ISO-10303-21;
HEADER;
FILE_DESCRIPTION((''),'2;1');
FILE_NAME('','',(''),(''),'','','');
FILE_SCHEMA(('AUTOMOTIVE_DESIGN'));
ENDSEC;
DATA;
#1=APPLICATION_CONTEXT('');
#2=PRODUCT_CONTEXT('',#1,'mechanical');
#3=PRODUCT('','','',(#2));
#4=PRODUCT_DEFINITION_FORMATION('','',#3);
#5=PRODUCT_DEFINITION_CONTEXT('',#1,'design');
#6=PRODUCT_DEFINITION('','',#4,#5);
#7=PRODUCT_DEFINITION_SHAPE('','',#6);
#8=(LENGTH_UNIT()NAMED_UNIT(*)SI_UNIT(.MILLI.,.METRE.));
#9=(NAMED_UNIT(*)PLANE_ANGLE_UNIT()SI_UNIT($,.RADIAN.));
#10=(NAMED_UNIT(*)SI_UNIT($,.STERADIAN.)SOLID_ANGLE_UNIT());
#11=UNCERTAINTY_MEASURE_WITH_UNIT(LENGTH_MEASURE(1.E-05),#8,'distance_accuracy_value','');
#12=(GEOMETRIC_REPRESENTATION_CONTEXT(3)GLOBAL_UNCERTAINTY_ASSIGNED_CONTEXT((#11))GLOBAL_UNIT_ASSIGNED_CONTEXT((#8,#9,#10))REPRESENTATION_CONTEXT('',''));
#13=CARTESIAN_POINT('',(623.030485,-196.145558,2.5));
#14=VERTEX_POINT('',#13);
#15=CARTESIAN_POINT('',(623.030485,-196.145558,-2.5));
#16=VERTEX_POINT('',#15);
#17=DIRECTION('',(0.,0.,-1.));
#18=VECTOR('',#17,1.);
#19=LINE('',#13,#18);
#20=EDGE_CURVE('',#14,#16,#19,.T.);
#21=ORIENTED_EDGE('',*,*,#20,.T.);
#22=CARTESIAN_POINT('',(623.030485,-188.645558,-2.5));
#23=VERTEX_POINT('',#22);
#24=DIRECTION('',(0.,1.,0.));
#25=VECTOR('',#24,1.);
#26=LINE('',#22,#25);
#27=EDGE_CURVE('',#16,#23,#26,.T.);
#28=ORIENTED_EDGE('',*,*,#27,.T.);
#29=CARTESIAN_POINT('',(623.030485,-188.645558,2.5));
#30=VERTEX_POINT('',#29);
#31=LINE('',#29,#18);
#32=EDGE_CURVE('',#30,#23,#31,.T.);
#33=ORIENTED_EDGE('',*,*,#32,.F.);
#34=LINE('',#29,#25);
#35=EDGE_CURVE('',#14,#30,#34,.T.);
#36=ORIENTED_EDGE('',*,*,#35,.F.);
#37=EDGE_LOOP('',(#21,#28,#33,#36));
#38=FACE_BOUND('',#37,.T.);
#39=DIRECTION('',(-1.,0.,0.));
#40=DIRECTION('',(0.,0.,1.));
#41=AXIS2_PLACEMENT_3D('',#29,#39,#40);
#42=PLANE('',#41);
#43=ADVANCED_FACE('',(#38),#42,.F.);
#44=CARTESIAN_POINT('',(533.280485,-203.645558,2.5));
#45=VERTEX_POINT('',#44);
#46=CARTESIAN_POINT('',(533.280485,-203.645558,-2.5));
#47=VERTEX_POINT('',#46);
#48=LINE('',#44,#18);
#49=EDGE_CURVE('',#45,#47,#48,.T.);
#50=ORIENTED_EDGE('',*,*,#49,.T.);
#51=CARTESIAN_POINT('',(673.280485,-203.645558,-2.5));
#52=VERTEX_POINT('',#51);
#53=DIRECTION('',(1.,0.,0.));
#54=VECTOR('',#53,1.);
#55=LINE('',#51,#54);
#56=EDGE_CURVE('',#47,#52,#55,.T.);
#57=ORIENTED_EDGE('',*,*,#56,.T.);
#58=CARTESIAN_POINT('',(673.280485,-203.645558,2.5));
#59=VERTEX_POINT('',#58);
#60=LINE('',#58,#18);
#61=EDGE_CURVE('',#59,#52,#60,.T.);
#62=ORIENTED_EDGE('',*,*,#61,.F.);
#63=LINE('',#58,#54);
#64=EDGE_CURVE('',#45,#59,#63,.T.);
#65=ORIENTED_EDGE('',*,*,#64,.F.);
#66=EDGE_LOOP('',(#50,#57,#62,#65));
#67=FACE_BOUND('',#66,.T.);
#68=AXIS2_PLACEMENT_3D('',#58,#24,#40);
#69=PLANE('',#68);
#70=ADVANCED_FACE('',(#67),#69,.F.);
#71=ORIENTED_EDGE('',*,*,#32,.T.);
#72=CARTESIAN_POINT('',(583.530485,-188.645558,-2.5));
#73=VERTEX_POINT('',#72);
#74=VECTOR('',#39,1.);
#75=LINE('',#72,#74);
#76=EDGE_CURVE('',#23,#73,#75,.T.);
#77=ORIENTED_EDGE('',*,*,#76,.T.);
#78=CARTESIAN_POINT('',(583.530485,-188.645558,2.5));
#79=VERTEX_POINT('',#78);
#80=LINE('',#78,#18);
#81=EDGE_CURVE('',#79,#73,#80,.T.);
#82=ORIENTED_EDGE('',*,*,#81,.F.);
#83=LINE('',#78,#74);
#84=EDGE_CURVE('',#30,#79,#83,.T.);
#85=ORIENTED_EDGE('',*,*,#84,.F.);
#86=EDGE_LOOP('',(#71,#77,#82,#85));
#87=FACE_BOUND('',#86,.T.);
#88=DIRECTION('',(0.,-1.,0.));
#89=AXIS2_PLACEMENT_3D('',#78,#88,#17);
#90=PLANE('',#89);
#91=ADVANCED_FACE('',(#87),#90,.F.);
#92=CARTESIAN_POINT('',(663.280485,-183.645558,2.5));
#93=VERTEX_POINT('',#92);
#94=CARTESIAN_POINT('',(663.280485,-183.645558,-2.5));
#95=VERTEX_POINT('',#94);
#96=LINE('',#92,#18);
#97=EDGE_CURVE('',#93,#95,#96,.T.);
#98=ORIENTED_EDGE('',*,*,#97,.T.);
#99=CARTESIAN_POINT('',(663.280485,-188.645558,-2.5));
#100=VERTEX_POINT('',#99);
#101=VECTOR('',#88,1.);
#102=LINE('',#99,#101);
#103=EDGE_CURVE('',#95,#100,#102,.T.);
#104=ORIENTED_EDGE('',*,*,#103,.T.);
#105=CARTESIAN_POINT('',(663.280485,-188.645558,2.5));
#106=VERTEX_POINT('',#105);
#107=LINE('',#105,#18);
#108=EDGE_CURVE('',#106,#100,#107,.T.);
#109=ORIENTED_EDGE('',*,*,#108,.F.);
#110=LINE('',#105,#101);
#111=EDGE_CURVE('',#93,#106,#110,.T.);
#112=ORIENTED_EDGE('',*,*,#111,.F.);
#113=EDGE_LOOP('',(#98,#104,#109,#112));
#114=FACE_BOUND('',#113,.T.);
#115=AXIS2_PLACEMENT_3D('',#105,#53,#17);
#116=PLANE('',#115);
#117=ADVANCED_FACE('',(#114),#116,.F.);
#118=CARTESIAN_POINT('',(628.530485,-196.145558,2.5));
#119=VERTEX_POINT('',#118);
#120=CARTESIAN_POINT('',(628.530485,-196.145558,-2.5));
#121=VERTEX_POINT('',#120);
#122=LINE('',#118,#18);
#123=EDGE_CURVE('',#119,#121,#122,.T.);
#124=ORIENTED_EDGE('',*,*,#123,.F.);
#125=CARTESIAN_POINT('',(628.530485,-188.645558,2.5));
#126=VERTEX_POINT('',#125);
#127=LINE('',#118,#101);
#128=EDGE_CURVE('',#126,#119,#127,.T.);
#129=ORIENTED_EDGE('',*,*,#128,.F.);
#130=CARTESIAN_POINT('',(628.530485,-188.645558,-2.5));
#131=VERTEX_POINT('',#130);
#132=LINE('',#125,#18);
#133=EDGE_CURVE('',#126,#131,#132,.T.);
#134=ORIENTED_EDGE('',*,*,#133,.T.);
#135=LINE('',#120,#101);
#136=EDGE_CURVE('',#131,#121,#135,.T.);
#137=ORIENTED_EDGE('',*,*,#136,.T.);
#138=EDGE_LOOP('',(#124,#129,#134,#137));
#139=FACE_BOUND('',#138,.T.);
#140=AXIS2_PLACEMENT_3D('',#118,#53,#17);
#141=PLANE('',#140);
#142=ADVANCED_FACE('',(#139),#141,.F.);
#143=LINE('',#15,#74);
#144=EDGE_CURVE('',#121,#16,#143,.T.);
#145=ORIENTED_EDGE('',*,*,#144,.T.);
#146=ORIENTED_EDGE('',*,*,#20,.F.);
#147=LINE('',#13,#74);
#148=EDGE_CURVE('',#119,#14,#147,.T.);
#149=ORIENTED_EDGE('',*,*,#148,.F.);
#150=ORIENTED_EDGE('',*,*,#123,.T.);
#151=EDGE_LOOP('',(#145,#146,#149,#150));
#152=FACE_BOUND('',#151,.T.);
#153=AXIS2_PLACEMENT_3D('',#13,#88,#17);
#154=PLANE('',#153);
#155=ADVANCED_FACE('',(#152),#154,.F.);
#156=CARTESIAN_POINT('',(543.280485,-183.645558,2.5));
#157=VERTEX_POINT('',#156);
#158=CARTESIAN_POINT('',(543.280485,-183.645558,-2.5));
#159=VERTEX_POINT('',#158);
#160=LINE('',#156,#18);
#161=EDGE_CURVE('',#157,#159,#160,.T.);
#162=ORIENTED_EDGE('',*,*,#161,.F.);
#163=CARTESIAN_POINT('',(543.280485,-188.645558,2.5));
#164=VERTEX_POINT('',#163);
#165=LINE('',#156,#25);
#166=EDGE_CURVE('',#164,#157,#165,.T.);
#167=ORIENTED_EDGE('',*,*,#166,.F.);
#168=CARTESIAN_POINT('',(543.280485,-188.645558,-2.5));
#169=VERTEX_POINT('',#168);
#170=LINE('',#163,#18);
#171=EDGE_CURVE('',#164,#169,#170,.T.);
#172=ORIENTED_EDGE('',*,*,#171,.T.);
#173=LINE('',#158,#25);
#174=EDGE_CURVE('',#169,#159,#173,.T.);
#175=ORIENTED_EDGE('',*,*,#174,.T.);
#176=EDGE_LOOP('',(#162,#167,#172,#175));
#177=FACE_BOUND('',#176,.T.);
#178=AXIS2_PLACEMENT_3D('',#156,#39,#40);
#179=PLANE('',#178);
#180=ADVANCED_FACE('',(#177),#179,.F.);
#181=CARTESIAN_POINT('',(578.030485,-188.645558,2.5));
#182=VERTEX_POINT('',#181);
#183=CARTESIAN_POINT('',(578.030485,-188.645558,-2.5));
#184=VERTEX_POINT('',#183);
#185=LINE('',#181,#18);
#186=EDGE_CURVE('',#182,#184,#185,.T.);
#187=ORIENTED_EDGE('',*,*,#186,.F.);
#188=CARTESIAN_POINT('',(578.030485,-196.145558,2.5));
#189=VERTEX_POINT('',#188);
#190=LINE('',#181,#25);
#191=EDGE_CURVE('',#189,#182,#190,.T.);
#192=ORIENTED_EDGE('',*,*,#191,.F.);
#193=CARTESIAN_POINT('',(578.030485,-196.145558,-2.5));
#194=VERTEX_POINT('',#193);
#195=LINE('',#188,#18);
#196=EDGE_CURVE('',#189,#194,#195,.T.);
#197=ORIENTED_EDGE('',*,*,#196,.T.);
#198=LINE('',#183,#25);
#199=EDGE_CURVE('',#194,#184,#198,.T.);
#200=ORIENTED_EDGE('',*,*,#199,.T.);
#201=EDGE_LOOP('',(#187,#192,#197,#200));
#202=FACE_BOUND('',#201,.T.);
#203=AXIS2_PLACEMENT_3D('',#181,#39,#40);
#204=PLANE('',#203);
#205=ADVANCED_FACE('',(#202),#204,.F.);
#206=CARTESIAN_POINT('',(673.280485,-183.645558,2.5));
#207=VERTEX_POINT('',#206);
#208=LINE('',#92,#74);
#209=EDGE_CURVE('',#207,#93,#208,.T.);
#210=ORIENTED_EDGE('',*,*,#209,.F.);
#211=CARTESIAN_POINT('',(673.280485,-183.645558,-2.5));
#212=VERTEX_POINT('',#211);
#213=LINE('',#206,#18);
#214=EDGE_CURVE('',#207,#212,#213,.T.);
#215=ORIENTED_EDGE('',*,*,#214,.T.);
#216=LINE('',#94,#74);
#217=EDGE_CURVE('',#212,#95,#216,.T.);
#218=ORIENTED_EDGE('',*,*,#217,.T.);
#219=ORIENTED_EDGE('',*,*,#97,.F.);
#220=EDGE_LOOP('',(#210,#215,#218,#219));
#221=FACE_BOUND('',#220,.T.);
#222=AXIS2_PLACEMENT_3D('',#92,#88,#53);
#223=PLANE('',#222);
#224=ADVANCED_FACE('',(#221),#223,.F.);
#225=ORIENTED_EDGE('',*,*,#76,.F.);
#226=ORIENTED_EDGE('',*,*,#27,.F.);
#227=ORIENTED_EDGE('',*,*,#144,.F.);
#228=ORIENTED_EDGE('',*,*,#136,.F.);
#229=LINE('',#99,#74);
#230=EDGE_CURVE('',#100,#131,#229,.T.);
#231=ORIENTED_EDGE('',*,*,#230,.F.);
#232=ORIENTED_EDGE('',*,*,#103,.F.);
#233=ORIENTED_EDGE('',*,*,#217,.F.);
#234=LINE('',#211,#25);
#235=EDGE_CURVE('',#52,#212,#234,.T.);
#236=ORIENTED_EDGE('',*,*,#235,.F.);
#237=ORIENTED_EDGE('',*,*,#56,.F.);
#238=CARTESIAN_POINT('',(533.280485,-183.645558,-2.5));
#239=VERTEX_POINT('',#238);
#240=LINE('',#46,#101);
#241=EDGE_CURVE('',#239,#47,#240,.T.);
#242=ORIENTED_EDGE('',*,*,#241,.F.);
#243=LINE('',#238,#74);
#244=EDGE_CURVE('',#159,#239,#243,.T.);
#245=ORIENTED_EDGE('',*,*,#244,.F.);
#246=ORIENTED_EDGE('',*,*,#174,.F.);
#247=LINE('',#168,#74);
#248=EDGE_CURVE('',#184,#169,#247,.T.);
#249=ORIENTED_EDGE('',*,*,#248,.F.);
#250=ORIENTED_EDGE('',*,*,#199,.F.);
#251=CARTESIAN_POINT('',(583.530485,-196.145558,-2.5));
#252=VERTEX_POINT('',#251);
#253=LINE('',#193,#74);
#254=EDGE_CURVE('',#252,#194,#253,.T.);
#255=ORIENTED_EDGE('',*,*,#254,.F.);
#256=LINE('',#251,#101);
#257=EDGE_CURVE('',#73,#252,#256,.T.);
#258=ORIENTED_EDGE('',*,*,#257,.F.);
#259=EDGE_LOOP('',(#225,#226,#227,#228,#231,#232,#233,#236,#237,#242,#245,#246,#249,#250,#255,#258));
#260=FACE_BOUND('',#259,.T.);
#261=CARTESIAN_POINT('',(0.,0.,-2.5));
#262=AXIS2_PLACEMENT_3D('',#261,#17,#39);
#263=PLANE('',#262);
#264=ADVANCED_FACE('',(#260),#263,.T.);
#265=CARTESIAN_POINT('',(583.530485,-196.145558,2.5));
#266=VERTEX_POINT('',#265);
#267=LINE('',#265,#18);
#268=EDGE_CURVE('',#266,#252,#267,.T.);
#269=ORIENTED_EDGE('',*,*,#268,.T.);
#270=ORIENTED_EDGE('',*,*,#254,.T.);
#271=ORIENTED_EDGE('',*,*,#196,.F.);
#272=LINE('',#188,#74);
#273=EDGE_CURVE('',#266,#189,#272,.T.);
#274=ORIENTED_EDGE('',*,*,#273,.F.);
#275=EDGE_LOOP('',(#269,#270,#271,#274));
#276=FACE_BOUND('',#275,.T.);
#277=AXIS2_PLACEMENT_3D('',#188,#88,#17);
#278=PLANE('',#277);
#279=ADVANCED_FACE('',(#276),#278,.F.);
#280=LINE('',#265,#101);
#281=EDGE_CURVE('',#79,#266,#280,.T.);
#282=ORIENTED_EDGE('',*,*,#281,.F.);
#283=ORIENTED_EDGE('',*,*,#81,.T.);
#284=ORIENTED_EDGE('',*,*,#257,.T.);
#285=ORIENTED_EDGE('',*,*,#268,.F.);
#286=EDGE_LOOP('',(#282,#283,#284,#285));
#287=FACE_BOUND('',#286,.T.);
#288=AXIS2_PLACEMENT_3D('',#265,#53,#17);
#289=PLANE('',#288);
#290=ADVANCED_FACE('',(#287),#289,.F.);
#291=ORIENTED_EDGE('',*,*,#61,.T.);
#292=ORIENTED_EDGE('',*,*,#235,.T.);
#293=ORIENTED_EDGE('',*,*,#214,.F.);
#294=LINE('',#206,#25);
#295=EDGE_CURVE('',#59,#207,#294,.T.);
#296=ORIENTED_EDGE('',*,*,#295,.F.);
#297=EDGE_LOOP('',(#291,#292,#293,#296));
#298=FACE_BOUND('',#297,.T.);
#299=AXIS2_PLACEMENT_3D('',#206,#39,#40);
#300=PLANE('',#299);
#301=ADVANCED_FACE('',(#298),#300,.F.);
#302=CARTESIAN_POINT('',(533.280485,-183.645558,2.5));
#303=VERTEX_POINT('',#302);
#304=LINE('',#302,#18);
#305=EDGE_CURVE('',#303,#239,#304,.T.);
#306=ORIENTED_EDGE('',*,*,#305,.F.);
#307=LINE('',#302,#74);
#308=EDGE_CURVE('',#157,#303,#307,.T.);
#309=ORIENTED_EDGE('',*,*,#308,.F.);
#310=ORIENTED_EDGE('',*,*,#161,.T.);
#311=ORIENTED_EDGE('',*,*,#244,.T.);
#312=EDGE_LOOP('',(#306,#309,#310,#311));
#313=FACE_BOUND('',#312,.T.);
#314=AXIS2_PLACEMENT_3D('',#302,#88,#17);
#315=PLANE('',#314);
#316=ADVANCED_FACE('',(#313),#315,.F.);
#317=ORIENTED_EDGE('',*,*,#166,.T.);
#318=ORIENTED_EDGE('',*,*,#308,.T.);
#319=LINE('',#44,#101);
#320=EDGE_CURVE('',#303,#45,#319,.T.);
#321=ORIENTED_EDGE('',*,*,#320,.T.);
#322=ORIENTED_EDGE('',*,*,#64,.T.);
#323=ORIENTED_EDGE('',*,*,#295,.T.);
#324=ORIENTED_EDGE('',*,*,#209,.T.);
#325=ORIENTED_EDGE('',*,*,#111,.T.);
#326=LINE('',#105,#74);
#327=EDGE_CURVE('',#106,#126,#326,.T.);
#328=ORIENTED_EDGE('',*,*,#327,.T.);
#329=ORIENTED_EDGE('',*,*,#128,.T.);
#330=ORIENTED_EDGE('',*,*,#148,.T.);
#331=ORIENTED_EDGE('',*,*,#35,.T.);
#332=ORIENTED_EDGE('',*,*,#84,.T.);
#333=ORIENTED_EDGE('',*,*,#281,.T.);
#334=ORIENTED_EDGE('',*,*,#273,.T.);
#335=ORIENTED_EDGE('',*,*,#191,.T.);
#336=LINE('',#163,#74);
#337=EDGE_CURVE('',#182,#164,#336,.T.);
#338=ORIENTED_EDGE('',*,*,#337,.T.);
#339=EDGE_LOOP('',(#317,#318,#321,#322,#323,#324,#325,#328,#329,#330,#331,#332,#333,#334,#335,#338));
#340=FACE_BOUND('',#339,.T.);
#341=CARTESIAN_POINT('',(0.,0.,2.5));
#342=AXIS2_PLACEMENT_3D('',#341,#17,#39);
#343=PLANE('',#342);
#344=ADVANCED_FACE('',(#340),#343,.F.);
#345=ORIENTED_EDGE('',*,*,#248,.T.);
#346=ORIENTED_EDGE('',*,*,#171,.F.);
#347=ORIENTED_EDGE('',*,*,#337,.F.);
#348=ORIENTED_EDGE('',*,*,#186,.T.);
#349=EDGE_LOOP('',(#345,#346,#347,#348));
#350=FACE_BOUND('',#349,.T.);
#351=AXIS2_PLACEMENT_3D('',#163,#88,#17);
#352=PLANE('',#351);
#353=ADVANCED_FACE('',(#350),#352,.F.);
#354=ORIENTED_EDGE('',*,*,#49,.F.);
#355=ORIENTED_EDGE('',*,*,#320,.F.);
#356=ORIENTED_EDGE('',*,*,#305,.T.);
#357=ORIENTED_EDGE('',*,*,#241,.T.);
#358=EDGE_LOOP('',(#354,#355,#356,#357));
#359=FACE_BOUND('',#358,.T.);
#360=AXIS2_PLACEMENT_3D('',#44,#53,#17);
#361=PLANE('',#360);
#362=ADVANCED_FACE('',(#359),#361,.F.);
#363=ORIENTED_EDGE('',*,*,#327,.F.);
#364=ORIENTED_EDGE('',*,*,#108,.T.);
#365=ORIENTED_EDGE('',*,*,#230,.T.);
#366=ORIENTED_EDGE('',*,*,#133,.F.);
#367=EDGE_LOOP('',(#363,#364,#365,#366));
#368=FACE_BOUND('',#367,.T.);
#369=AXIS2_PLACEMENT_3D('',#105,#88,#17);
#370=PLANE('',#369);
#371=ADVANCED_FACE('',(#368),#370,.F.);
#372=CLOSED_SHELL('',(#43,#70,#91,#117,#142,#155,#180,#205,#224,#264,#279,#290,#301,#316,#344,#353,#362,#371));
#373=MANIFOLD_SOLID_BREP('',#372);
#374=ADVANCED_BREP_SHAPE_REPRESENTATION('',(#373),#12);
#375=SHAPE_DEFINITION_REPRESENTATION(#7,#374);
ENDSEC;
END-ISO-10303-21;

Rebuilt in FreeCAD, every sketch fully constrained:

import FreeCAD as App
import Part
import Sketcher
from FreeCAD import Vector


def add_polygon(sketch, points):
    """Adds a closed chain of lines whose ends are joined by coincident constraints."""
    first, n = sketch.GeometryCount, len(points)
    for a, b in zip(points, points[1:] + points[:1]):
        sketch.addGeometry(Part.LineSegment(App.Vector(*a, 0), App.Vector(*b, 0)), False)
    for i in range(n):
        sketch.addConstraint(Sketcher.Constraint("Coincident", first + i, 2, first + (i + 1) % n, 1))

doc = App.newDocument("Part")
body = doc.addObject("PartDesign::Body", "Body")

# Sketch on XY plane
sketch1 = body.newObject("Sketcher::SketchObject", "Sketch")
sketch1.AttachmentSupport = (doc.getObject("XY_Plane"), [""])
sketch1.MapMode = "FlatFace"
add_polygon(sketch1, [(673, -204), (673, -184), (663, -184), (663, -189), (629, -189), (629, -196), (623, -196), (623, -189), (584, -189), (584, -196), (578, -196), (578, -189), (543, -189), (543, -184), (533, -184), (533, -204)])  # lines 0-15
sketch1.addConstraint(Sketcher.Constraint("Vertical", 0))
sketch1.addConstraint(Sketcher.Constraint("Horizontal", 1))
sketch1.addConstraint(Sketcher.Constraint("Vertical", 2))
sketch1.addConstraint(Sketcher.Constraint("Horizontal", 3))
sketch1.addConstraint(Sketcher.Constraint("Vertical", 4))
sketch1.addConstraint(Sketcher.Constraint("Horizontal", 5))
sketch1.addConstraint(Sketcher.Constraint("Vertical", 6))
sketch1.addConstraint(Sketcher.Constraint("Horizontal", 7))
sketch1.addConstraint(Sketcher.Constraint("Vertical", 8))
sketch1.addConstraint(Sketcher.Constraint("Horizontal", 9))
sketch1.addConstraint(Sketcher.Constraint("Vertical", 10))
sketch1.addConstraint(Sketcher.Constraint("Horizontal", 11))
sketch1.addConstraint(Sketcher.Constraint("Vertical", 12))
sketch1.addConstraint(Sketcher.Constraint("Horizontal", 13))
sketch1.addConstraint(Sketcher.Constraint("Vertical", 14))
sketch1.addConstraint(Sketcher.Constraint("Horizontal", 15))
sketch1.addConstraint(Sketcher.Constraint("Horizontal", 3, 2, 6, 2))
sketch1.addConstraint(Sketcher.Constraint("Horizontal", 5, 2, 8, 2))
sketch1.addConstraint(Sketcher.Constraint("Horizontal", 7, 2, 10, 2))
sketch1.addConstraint(Sketcher.Constraint("Horizontal", 1, 2, 12, 2))
sketch1.addConstraint(Sketcher.Constraint("Equal", 5, 9))
sketch1.addConstraint(Sketcher.Constraint("Equal", 3, 11))
sketch1.addConstraint(Sketcher.Constraint("Equal", 1, 13))
sketch1.addConstraint(Sketcher.Constraint("DistanceX", 1, 2, 1, 1, 10.0))
sketch1.addConstraint(Sketcher.Constraint("DistanceX", 15, 1, 15, 2, 140.0))
sketch1.addConstraint(Sketcher.Constraint("DistanceY", 0, 1, 0, 2, 20.0))
sketch1.addConstraint(Sketcher.Constraint("DistanceY", 2, 2, 2, 1, 5.0))
sketch1.addConstraint(Sketcher.Constraint("DistanceX", 5, 2, 5, 1, 5.5))
sketch1.addConstraint(Sketcher.Constraint("DistanceX", 7, 2, 7, 1, 39.5))
sketch1.addConstraint(Sketcher.Constraint("DistanceY", 4, 2, 4, 1, 7.5))
sketch1.addConstraint(Sketcher.Constraint("DistanceX", -1, 1, 0, 2, 673.280485))
sketch1.addConstraint(Sketcher.Constraint("DistanceY", 0, 2, -1, 1, 183.645558))
pad1 = body.newObject("PartDesign::Pad", "Pad")
pad1.Profile = sketch1
pad1.Length = 5
pad1.Midplane = True

doc.recompute()
